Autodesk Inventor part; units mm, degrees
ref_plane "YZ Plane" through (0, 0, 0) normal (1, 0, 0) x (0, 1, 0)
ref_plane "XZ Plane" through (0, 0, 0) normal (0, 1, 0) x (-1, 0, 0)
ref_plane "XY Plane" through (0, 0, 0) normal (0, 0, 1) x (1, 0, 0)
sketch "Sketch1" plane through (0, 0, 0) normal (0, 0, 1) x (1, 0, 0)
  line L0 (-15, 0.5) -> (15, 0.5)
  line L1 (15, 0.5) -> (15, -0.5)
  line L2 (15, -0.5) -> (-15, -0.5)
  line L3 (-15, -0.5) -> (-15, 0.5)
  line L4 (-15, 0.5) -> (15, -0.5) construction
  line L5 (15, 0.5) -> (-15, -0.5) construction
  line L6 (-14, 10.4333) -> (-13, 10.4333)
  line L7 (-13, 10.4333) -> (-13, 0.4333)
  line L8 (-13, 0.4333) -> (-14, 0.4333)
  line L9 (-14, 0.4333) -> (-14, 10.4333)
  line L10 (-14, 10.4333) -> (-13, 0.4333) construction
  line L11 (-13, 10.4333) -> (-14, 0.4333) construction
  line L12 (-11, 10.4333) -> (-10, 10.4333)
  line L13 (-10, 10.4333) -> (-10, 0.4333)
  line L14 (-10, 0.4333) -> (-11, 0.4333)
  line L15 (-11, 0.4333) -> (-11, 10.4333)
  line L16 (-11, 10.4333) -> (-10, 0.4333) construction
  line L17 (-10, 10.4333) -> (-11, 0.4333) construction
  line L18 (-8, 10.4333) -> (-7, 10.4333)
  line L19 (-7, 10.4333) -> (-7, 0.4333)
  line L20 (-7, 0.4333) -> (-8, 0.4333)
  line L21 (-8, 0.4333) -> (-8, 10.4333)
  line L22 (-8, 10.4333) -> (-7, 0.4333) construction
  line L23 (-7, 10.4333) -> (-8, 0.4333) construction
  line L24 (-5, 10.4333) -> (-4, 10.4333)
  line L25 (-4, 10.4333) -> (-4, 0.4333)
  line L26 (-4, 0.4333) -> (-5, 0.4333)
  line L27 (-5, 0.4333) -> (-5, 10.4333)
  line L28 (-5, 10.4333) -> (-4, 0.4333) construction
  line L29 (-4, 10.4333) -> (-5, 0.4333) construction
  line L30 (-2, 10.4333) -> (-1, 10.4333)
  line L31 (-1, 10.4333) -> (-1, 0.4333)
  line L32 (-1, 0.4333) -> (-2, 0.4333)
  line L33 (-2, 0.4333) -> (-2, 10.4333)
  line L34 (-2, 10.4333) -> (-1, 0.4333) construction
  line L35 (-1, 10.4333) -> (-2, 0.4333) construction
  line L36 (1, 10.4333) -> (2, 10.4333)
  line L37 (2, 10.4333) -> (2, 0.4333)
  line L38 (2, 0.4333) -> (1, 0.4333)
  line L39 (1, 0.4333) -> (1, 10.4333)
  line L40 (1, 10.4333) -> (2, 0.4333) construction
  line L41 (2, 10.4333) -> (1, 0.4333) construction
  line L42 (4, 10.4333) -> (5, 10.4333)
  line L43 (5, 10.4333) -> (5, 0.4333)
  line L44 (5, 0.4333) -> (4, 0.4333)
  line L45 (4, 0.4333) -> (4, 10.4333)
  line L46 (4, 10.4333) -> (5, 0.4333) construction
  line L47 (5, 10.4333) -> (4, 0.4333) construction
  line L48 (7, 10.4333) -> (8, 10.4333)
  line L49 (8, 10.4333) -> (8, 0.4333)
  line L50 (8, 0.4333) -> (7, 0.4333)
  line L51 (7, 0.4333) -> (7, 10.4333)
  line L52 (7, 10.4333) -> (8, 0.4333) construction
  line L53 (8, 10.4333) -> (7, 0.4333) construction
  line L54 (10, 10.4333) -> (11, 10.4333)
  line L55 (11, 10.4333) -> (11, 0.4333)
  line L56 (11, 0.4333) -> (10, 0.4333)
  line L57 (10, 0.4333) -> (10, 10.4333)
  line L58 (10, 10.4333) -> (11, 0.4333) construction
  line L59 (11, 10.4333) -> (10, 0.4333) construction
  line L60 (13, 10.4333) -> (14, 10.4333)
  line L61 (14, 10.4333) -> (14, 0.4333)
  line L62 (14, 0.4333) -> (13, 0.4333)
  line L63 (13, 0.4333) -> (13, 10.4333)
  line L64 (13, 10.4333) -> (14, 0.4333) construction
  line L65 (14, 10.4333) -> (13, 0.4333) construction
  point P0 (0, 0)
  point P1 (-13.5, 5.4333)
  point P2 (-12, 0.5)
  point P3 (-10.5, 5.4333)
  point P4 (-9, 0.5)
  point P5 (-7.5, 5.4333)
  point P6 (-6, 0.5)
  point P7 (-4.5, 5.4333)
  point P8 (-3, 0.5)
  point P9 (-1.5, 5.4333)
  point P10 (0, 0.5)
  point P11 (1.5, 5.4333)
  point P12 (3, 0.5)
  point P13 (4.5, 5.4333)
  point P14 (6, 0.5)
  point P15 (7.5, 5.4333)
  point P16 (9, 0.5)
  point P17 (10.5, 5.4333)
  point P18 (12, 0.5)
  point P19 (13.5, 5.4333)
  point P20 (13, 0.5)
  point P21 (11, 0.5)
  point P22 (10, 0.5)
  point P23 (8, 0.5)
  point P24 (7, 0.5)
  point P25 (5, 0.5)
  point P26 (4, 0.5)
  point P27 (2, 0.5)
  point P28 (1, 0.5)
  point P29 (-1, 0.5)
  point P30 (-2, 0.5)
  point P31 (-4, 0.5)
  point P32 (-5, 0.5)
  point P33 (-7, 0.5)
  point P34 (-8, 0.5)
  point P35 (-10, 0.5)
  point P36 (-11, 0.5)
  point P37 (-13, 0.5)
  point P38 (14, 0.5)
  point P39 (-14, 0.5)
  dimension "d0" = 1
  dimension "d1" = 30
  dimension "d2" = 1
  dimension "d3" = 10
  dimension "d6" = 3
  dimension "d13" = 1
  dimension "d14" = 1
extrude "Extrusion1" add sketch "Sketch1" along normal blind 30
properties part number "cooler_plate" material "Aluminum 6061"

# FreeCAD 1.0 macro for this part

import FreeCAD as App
import Part
import Sketcher
from FreeCAD import Vector

doc = App.newDocument("Part")
body = doc.addObject("PartDesign::Body", "Body")

sketch1 = body.newObject("Sketcher::SketchObject", "Sketch")
sketch1.AttachmentSupport = (doc.getObject("XY_Plane"), [""])
sketch1.MapMode = "FlatFace"
sketch1.addGeometry([
    Part.LineSegment(Vector(-14, 0.5, 0), Vector(-15, 0.5, 0)),
    Part.LineSegment(Vector(-15, 0.5, 0), Vector(-15, -0.5, 0)),
    Part.LineSegment(Vector(-15, -0.5, 0), Vector(15, -0.5, 0)),
    Part.LineSegment(Vector(15, -0.5, 0), Vector(15, 0.5, 0)),
    Part.LineSegment(Vector(15, 0.5, 0), Vector(14, 0.5, 0)),
    Part.LineSegment(Vector(14, 0.5, 0), Vector(14, 10.4333, 0)),
    Part.LineSegment(Vector(14, 10.4333, 0), Vector(13, 10.4333, 0)),
    Part.LineSegment(Vector(13, 10.4333, 0), Vector(13, 0.5, 0)),
    Part.LineSegment(Vector(13, 0.5, 0), Vector(11, 0.5, 0)),
    Part.LineSegment(Vector(11, 0.5, 0), Vector(11, 10.4333, 0)),
    Part.LineSegment(Vector(11, 10.4333, 0), Vector(10, 10.4333, 0)),
    Part.LineSegment(Vector(10, 10.4333, 0), Vector(10, 0.5, 0)),
    Part.LineSegment(Vector(10, 0.5, 0), Vector(8, 0.5, 0)),
    Part.LineSegment(Vector(8, 0.5, 0), Vector(8, 10.4333, 0)),
    Part.LineSegment(Vector(8, 10.4333, 0), Vector(7, 10.4333, 0)),
    Part.LineSegment(Vector(7, 10.4333, 0), Vector(7, 0.5, 0)),
    Part.LineSegment(Vector(7, 0.5, 0), Vector(5, 0.5, 0)),
    Part.LineSegment(Vector(5, 0.5, 0), Vector(5, 10.4333, 0)),
    Part.LineSegment(Vector(5, 10.4333, 0), Vector(4, 10.4333, 0)),
    Part.LineSegment(Vector(4, 10.4333, 0), Vector(4, 0.5, 0)),
    Part.LineSegment(Vector(4, 0.5, 0), Vector(2, 0.5, 0)),
    Part.LineSegment(Vector(2, 0.5, 0), Vector(2, 10.4333, 0)),
    Part.LineSegment(Vector(2, 10.4333, 0), Vector(1, 10.4333, 0)),
    Part.LineSegment(Vector(1, 10.4333, 0), Vector(1, 0.5, 0)),
    Part.LineSegment(Vector(1, 0.5, 0), Vector(-1, 0.5, 0)),
    Part.LineSegment(Vector(-1, 0.5, 0), Vector(-1, 10.4333, 0)),
    Part.LineSegment(Vector(-1, 10.4333, 0), Vector(-2, 10.4333, 0)),
    Part.LineSegment(Vector(-2, 10.4333, 0), Vector(-2, 0.5, 0)),
    Part.LineSegment(Vector(-2, 0.5, 0), Vector(-4, 0.5, 0)),
    Part.LineSegment(Vector(-4, 0.5, 0), Vector(-4, 10.4333, 0)),
    Part.LineSegment(Vector(-4, 10.4333, 0), Vector(-5, 10.4333, 0)),
    Part.LineSegment(Vector(-5, 10.4333, 0), Vector(-5, 0.5, 0)),
    Part.LineSegment(Vector(-5, 0.5, 0), Vector(-7, 0.5, 0)),
    Part.LineSegment(Vector(-7, 0.5, 0), Vector(-7, 10.4333, 0)),
    Part.LineSegment(Vector(-7, 10.4333, 0), Vector(-8, 10.4333, 0)),
    Part.LineSegment(Vector(-8, 10.4333, 0), Vector(-8, 0.5, 0)),
    Part.LineSegment(Vector(-8, 0.5, 0), Vector(-10, 0.5, 0)),
    Part.LineSegment(Vector(-10, 0.5, 0), Vector(-10, 10.4333, 0)),
    Part.LineSegment(Vector(-10, 10.4333, 0), Vector(-11, 10.4333, 0)),
    Part.LineSegment(Vector(-11, 10.4333, 0), Vector(-11, 0.5, 0)),
    Part.LineSegment(Vector(-11, 0.5, 0), Vector(-13, 0.5, 0)),
    Part.LineSegment(Vector(-13, 0.5, 0), Vector(-13, 10.4333, 0)),
    Part.LineSegment(Vector(-13, 10.4333, 0), Vector(-14, 10.4333, 0)),
    Part.LineSegment(Vector(-14, 10.4333, 0), Vector(-14, 0.5, 0)),
], False)
sketch1.addConstraint([
    Sketcher.Constraint("Coincident", 0, 2, 1, 1),
    Sketcher.Constraint("Coincident", 1, 2, 2, 1),
    Sketcher.Constraint("Coincident", 2, 2, 3, 1),
    Sketcher.Constraint("Coincident", 3, 2, 4, 1),
    Sketcher.Constraint("Coincident", 4, 2, 5, 1),
    Sketcher.Constraint("Coincident", 5, 2, 6, 1),
    Sketcher.Constraint("Coincident", 6, 2, 7, 1),
    Sketcher.Constraint("Coincident", 7, 2, 8, 1),
    Sketcher.Constraint("Coincident", 8, 2, 9, 1),
    Sketcher.Constraint("Coincident", 9, 2, 10, 1),
    Sketcher.Constraint("Coincident", 10, 2, 11, 1),
    Sketcher.Constraint("Coincident", 11, 2, 12, 1),
    Sketcher.Constraint("Coincident", 12, 2, 13, 1),
    Sketcher.Constraint("Coincident", 13, 2, 14, 1),
    Sketcher.Constraint("Coincident", 14, 2, 15, 1),
    Sketcher.Constraint("Coincident", 15, 2, 16, 1),
    Sketcher.Constraint("Coincident", 16, 2, 17, 1),
    Sketcher.Constraint("Coincident", 17, 2, 18, 1),
    Sketcher.Constraint("Coincident", 18, 2, 19, 1),
    Sketcher.Constraint("Coincident", 19, 2, 20, 1),
    Sketcher.Constraint("Coincident", 20, 2, 21, 1),
    Sketcher.Constraint("Coincident", 21, 2, 22, 1),
    Sketcher.Constraint("Coincident", 22, 2, 23, 1),
    Sketcher.Constraint("Coincident", 23, 2, 24, 1),
    Sketcher.Constraint("Coincident", 24, 2, 25, 1),
    Sketcher.Constraint("Coincident", 25, 2, 26, 1),
    Sketcher.Constraint("Coincident", 26, 2, 27, 1),
    Sketcher.Constraint("Coincident", 27, 2, 28, 1),
    Sketcher.Constraint("Coincident", 28, 2, 29, 1),
    Sketcher.Constraint("Coincident", 29, 2, 30, 1),
    Sketcher.Constraint("Coincident", 30, 2, 31, 1),
    Sketcher.Constraint("Coincident", 31, 2, 32, 1),
    Sketcher.Constraint("Coincident", 32, 2, 33, 1),
    Sketcher.Constraint("Coincident", 33, 2, 34, 1),
    Sketcher.Constraint("Coincident", 34, 2, 35, 1),
    Sketcher.Constraint("Coincident", 35, 2, 36, 1),
    Sketcher.Constraint("Coincident", 36, 2, 37, 1),
    Sketcher.Constraint("Coincident", 37, 2, 38, 1),
    Sketcher.Constraint("Coincident", 38, 2, 39, 1),
    Sketcher.Constraint("Coincident", 39, 2, 40, 1),
    Sketcher.Constraint("Coincident", 40, 2, 41, 1),
    Sketcher.Constraint("Coincident", 41, 2, 42, 1),
    Sketcher.Constraint("Coincident", 42, 2, 43, 1),
    Sketcher.Constraint("Coincident", 43, 2, 0, 1),
    Sketcher.Constraint("Horizontal", 0),
    Sketcher.Constraint("Vertical", 1),
    Sketcher.Constraint("Horizontal", 2),
    Sketcher.Constraint("Vertical", 3),
    Sketcher.Constraint("Horizontal", 4),
    Sketcher.Constraint("Vertical", 5),
    Sketcher.Constraint("Horizontal", 6),
    Sketcher.Constraint("Vertical", 7),
    Sketcher.Constraint("Horizontal", 8),
    Sketcher.Constraint("Vertical", 9),
    Sketcher.Constraint("Horizontal", 10),
    Sketcher.Constraint("Vertical", 11),
    Sketcher.Constraint("Horizontal", 12),
    Sketcher.Constraint("Vertical", 13),
    Sketcher.Constraint("Horizontal", 14),
    Sketcher.Constraint("Vertical", 15),
    Sketcher.Constraint("Horizontal", 16),
    Sketcher.Constraint("Vertical", 17),
    Sketcher.Constraint("Horizontal", 18),
    Sketcher.Constraint("Vertical", 19),
    Sketcher.Constraint("Horizontal", 20),
    Sketcher.Constraint("Vertical", 21),
    Sketcher.Constraint("Horizontal", 22),
    Sketcher.Constraint("Vertical", 23),
    Sketcher.Constraint("Horizontal", 24),
    Sketcher.Constraint("Vertical", 25),
    Sketcher.Constraint("Horizontal", 26),
    Sketcher.Constraint("Vertical", 27),
    Sketcher.Constraint("Horizontal", 28),
    Sketcher.Constraint("Vertical", 29),
    Sketcher.Constraint("Horizontal", 30),
    Sketcher.Constraint("Vertical", 31),
    Sketcher.Constraint("Horizontal", 32),
    Sketcher.Constraint("Vertical", 33),
    Sketcher.Constraint("Horizontal", 34),
    Sketcher.Constraint("Vertical", 35),
    Sketcher.Constraint("Horizontal", 36),
    Sketcher.Constraint("Vertical", 37),
    Sketcher.Constraint("Horizontal", 38),
    Sketcher.Constraint("Vertical", 39),
    Sketcher.Constraint("Horizontal", 40),
    Sketcher.Constraint("Vertical", 41),
    Sketcher.Constraint("Horizontal", 42),
    Sketcher.Constraint("Vertical", 43),
    Sketcher.Constraint("Symmetric", 0, 2, 2, 2, -1, 1),
    Sketcher.Constraint("Symmetric", 22, 2, 25, 2, -2),
    Sketcher.Constraint("Symmetric", 20, 2, 27, 2, -2),
    Sketcher.Constraint("Symmetric", 18, 2, 29, 2, -2),
    Sketcher.Constraint("Symmetric", 16, 2, 31, 2, -2),
    Sketcher.Constraint("Symmetric", 14, 2, 33, 2, -2),
    Sketcher.Constraint("Symmetric", 12, 2, 35, 2, -2),
    Sketcher.Constraint("Symmetric", 10, 2, 37, 2, -2),
    Sketcher.Constraint("Symmetric", 8, 2, 39, 2, -2),
    Sketcher.Constraint("Symmetric", 6, 2, 41, 2, -2),
    Sketcher.Constraint("Symmetric", 4, 2, 43, 2, -2),
    Sketcher.Constraint("Horizontal", 4, 2, 7, 2),
    Sketcher.Constraint("Horizontal", 6, 2, 9, 2),
    Sketcher.Constraint("Horizontal", 8, 2, 11, 2),
    Sketcher.Constraint("Horizontal", 10, 2, 13, 2),
    Sketcher.Constraint("Horizontal", 12, 2, 15, 2),
    Sketcher.Constraint("Horizontal", 14, 2, 17, 2),
    Sketcher.Constraint("Horizontal", 16, 2, 19, 2),
    Sketcher.Constraint("Horizontal", 18, 2, 21, 2),
    Sketcher.Constraint("Horizontal", 20, 2, 23, 2),
    Sketcher.Constraint("Equal", 4, 6),
    Sketcher.Constraint("Equal", 6, 10),
    Sketcher.Constraint("Equal", 8, 12),
    Sketcher.Constraint("Equal", 10, 14),
    Sketcher.Constraint("Equal", 12, 16),
    Sketcher.Constraint("Equal", 14, 18),
    Sketcher.Constraint("Equal", 16, 20),
    Sketcher.Constraint("Equal", 18, 22),
    Sketcher.Constraint("Equal", 20, 24),
    Sketcher.Constraint("Equal", 42, 1),
    Sketcher.Constraint("DistanceX", 0, 2, 0, 1, 1.0),
    Sketcher.Constraint("DistanceX", 2, 1, 2, 2, 30.0),
    Sketcher.Constraint("DistanceY", 5, 1, 5, 2, 9.9333),
])
pad1 = body.newObject("PartDesign::Pad", "Pad")
pad1.Profile = sketch1
pad1.Length = 30

doc.recompute()
